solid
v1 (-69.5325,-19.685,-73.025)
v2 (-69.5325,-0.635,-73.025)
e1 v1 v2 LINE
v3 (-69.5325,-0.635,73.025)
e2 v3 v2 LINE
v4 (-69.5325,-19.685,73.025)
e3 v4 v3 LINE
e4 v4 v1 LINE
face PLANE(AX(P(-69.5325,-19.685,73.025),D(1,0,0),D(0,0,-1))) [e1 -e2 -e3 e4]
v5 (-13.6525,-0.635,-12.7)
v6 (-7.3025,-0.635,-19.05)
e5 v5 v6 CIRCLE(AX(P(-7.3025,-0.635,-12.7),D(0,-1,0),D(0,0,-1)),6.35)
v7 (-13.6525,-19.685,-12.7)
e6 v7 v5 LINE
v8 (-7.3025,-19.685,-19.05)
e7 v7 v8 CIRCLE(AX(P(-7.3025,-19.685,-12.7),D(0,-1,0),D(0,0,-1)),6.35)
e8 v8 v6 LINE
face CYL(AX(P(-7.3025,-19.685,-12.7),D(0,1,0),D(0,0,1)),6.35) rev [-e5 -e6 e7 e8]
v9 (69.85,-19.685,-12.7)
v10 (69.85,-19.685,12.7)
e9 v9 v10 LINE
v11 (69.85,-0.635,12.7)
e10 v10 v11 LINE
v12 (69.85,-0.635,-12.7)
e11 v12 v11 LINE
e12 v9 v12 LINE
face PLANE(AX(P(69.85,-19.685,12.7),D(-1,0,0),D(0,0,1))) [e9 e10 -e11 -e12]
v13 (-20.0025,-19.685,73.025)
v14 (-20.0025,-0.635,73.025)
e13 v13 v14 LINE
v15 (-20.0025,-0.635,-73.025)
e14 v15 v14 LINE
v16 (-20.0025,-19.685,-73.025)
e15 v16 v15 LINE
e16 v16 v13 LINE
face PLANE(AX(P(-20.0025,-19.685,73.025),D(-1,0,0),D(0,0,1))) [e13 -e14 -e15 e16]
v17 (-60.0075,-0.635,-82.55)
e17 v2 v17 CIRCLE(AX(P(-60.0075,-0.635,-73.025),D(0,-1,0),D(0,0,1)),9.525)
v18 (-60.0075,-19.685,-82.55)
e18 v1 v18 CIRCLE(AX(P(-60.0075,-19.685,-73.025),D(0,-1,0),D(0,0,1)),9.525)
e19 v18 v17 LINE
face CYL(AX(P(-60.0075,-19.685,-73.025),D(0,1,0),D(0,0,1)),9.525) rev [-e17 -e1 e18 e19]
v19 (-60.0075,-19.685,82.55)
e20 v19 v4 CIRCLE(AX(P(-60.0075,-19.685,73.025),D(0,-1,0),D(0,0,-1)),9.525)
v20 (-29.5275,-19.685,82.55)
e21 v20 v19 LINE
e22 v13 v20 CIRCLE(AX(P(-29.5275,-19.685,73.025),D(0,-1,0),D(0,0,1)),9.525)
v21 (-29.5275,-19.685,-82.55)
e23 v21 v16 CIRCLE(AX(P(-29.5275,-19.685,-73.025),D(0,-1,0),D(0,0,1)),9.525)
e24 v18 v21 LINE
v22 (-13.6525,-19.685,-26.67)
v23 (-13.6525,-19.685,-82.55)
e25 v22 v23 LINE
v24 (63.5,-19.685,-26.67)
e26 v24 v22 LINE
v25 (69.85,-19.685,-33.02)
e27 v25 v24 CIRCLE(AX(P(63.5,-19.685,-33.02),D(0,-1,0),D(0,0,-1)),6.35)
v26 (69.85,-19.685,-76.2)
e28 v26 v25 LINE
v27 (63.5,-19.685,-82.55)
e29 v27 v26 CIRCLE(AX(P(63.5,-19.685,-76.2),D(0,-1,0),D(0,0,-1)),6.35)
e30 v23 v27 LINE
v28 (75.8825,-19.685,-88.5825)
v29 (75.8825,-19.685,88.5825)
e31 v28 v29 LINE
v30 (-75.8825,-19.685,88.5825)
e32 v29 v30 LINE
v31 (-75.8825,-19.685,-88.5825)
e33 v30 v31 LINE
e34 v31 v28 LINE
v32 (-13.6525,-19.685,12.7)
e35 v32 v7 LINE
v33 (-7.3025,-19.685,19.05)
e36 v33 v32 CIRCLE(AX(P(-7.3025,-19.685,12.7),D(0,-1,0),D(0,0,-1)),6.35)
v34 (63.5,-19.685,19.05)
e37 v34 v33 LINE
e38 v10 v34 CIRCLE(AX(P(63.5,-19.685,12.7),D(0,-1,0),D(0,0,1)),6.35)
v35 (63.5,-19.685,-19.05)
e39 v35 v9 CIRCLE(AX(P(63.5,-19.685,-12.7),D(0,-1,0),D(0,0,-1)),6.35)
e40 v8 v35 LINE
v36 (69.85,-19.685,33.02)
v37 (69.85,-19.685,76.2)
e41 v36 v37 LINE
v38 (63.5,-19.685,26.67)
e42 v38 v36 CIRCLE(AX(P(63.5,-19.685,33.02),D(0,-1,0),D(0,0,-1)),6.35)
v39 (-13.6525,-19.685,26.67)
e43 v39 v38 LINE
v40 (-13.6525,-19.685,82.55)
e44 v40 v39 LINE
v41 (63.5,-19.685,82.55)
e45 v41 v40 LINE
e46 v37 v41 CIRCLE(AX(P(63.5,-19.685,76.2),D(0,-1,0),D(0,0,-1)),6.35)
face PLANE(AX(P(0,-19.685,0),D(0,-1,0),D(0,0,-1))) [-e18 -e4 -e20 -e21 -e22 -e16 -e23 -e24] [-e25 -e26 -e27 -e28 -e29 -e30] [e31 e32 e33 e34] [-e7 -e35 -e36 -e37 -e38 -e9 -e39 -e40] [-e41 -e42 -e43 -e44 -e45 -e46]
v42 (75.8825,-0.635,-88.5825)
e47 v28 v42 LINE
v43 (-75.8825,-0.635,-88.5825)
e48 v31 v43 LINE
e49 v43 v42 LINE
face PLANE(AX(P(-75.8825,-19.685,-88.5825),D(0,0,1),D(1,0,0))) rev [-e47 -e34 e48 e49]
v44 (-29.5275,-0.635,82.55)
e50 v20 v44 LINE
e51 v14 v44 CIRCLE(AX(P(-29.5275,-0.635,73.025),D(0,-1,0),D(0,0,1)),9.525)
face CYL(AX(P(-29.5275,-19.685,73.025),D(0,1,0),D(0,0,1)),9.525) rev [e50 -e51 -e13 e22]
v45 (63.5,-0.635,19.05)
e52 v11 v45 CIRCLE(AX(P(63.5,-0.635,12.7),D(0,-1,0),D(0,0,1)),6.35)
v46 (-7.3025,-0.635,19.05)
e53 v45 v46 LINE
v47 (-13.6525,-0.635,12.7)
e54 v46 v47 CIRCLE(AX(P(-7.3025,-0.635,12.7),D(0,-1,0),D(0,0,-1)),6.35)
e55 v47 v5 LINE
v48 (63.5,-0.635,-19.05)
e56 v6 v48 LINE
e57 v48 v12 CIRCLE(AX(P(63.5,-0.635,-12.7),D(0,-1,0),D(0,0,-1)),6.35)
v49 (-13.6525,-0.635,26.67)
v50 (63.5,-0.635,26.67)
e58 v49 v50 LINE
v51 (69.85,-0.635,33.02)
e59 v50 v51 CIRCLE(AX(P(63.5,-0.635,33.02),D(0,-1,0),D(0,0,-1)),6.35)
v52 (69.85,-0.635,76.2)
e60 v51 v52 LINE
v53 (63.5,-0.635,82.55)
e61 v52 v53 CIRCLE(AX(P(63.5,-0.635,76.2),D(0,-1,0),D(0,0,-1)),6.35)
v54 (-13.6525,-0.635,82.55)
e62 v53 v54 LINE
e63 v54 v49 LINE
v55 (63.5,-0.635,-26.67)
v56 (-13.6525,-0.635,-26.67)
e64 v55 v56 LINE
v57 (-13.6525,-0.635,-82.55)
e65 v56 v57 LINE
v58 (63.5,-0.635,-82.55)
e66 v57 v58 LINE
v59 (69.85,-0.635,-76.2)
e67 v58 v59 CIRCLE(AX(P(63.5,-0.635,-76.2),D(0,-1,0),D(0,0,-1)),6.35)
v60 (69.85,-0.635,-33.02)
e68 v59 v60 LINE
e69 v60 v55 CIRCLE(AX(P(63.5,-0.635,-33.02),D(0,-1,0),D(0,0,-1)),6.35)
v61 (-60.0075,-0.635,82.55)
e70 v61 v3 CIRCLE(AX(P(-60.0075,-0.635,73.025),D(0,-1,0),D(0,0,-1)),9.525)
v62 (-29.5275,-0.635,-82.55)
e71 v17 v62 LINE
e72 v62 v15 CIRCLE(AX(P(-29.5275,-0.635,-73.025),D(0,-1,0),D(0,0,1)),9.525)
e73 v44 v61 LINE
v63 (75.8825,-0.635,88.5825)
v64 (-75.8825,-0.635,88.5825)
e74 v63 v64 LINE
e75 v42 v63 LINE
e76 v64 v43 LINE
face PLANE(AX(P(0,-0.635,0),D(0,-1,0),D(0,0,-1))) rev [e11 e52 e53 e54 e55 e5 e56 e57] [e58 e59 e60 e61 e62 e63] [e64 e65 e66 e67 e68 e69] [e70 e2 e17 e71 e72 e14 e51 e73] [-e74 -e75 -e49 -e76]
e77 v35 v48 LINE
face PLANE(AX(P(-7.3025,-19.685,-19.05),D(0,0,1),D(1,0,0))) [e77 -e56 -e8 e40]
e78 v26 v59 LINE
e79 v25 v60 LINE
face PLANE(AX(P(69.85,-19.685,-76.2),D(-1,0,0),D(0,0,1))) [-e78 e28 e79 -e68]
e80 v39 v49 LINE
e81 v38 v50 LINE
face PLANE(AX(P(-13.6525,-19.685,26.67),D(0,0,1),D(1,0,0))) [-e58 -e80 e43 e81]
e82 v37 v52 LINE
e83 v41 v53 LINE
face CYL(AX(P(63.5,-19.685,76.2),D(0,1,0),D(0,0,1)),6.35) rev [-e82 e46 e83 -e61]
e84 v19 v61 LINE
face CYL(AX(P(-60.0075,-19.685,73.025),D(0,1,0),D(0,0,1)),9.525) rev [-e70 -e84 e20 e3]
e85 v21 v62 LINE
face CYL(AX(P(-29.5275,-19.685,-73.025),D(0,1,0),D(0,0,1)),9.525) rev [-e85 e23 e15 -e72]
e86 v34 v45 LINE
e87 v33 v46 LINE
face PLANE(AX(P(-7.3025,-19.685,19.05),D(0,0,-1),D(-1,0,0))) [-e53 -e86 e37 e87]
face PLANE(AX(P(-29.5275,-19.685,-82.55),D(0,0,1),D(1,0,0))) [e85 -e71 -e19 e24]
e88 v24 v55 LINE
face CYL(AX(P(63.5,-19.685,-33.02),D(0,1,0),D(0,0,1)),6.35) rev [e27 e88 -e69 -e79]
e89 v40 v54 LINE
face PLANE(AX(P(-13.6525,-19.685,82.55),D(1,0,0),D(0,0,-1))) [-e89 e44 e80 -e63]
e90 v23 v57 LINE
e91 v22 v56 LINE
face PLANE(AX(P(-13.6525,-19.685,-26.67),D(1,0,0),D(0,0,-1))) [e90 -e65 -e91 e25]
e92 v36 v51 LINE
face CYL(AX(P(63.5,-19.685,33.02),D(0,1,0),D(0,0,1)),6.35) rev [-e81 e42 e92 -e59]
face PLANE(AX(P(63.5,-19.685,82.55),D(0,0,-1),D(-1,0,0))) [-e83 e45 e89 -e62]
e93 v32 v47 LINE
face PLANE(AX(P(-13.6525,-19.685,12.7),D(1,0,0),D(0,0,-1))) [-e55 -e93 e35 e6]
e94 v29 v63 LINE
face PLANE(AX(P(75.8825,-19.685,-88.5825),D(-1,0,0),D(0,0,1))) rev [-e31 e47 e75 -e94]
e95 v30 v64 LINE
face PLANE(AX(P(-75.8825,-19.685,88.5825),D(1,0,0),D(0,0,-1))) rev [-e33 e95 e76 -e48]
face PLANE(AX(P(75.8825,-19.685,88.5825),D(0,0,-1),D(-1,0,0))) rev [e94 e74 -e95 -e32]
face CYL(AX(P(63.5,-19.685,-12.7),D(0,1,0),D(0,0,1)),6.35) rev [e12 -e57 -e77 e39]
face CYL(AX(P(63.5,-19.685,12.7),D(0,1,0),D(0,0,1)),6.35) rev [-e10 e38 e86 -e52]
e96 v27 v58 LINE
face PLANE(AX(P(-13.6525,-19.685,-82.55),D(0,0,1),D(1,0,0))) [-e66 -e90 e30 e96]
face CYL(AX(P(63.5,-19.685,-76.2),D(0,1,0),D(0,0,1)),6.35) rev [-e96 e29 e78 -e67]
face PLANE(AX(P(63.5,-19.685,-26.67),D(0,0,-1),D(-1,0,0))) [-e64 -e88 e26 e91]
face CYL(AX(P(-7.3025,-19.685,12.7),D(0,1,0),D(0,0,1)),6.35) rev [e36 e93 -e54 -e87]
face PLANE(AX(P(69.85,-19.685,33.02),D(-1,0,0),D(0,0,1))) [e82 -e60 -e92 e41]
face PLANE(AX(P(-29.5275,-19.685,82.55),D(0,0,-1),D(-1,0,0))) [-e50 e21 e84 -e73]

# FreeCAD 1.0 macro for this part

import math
import FreeCAD as App
import Part
import Sketcher
Q = App.Units.Quantity

doc = App.newDocument("Part")
body = doc.addObject("PartDesign::Body", "Body")

# Sketch on XZ plane
sketch1 = body.newObject("Sketcher::SketchObject", "Sketch")
sketch1.AttachmentSupport = (doc.getObject("XZ_Plane"), [""])
sketch1.MapMode = "FlatFace"
sketch1.AttachmentOffset = App.Placement(App.Vector(0, 0, 0.025 * 25.4), App.Rotation())
sketch1.addGeometry(Part.LineSegment(App.Vector(76, -89, 0), App.Vector(76, 89, 0)), False)
sketch1.addGeometry(Part.LineSegment(App.Vector(76, 89, 0), App.Vector(-76, 89, 0)), False)
sketch1.addGeometry(Part.LineSegment(App.Vector(-76, 89, 0), App.Vector(-76, -89, 0)), False)
sketch1.addGeometry(Part.LineSegment(App.Vector(-76, -89, 0), App.Vector(76, -89, 0)), False)
sketch1.addGeometry(Part.LineSegment(App.Vector(-14, 27, 0), App.Vector(-14, 83, 0)), False)
sketch1.addGeometry(Part.LineSegment(App.Vector(-14, 83, 0), App.Vector(64, 83, 0)), False)
sketch1.addGeometry(Part.ArcOfCircle(Part.Circle(App.Vector(64, 76, 0), App.Vector(0, 0, 1), 6), math.radians(0), math.radians(90)), False)
sketch1.addGeometry(Part.LineSegment(App.Vector(70, 76, 0), App.Vector(70, 33, 0)), False)
sketch1.addGeometry(Part.ArcOfCircle(Part.Circle(App.Vector(64, 33, 0), App.Vector(0, 0, 1), 6), math.radians(-90), math.radians(0)), False)
sketch1.addGeometry(Part.LineSegment(App.Vector(64, 27, 0), App.Vector(-14, 27, 0)), False)
sketch1.addGeometry(Part.ArcOfCircle(Part.Circle(App.Vector(-7, 13, 0), App.Vector(0, 0, 1), 6), math.radians(90), math.radians(180)), False)
sketch1.addGeometry(Part.LineSegment(App.Vector(-7, 19, 0), App.Vector(64, 19, 0)), False)
sketch1.addGeometry(Part.ArcOfCircle(Part.Circle(App.Vector(64, 13, 0), App.Vector(0, 0, 1), 6), math.radians(0), math.radians(90)), False)
sketch1.addGeometry(Part.LineSegment(App.Vector(70, 13, 0), App.Vector(70, -13, 0)), False)
sketch1.addGeometry(Part.ArcOfCircle(Part.Circle(App.Vector(64, -13, 0), App.Vector(0, 0, 1), 6), math.radians(-90), math.radians(0)), False)
sketch1.addGeometry(Part.LineSegment(App.Vector(64, -19, 0), App.Vector(-7, -19, 0)), False)
sketch1.addGeometry(Part.ArcOfCircle(Part.Circle(App.Vector(-7, -13, 0), App.Vector(0, 0, 1), 6), math.radians(180), math.radians(270)), False)
sketch1.addGeometry(Part.LineSegment(App.Vector(-14, -13, 0), App.Vector(-14, 13, 0)), False)
sketch1.addGeometry(Part.LineSegment(App.Vector(-14, -83, 0), App.Vector(-14, -27, 0)), False)
sketch1.addGeometry(Part.LineSegment(App.Vector(-14, -27, 0), App.Vector(64, -27, 0)), False)
sketch1.addGeometry(Part.ArcOfCircle(Part.Circle(App.Vector(64, -33, 0), App.Vector(0, 0, 1), 6), math.radians(0), math.radians(90)), False)
sketch1.addGeometry(Part.LineSegment(App.Vector(70, -33, 0), App.Vector(70, -76, 0)), False)
sketch1.addGeometry(Part.ArcOfCircle(Part.Circle(App.Vector(64, -76, 0), App.Vector(0, 0, 1), 6), math.radians(-90), math.radians(0)), False)
sketch1.addGeometry(Part.LineSegment(App.Vector(64, -83, 0), App.Vector(-14, -83, 0)), False)
sketch1.addGeometry(Part.LineSegment(App.Vector(-60, 83, 0), App.Vector(-30, 83, 0)), False)
sketch1.addGeometry(Part.ArcOfCircle(Part.Circle(App.Vector(-30, 73, 0), App.Vector(0, 0, 1), 10), math.radians(0), math.radians(90)), False)
sketch1.addGeometry(Part.LineSegment(App.Vector(-20, 73, 0), App.Vector(-20, -73, 0)), False)
sketch1.addGeometry(Part.ArcOfCircle(Part.Circle(App.Vector(-30, -73, 0), App.Vector(0, 0, 1), 10), math.radians(-90), math.radians(0)), False)
sketch1.addGeometry(Part.LineSegment(App.Vector(-30, -83, 0), App.Vector(-60, -83, 0)), False)
sketch1.addGeometry(Part.ArcOfCircle(Part.Circle(App.Vector(-60, -73, 0), App.Vector(0, 0, 1), 10), math.radians(180), math.radians(270)), False)
sketch1.addGeometry(Part.LineSegment(App.Vector(-70, -73, 0), App.Vector(-70, 73, 0)), False)
sketch1.addGeometry(Part.ArcOfCircle(Part.Circle(App.Vector(-60, 73, 0), App.Vector(0, 0, 1), 10), math.radians(90), math.radians(180)), False)
sketch1.addConstraint(Sketcher.Constraint("Coincident", 0, 2, 1, 1))
sketch1.addConstraint(Sketcher.Constraint("Coincident", 1, 2, 2, 1))
sketch1.addConstraint(Sketcher.Constraint("Coincident", 2, 2, 3, 1))
sketch1.addConstraint(Sketcher.Constraint("Coincident", 3, 2, 0, 1))
sketch1.addConstraint(Sketcher.Constraint("Coincident", 4, 2, 5, 1))
sketch1.addConstraint(Sketcher.Constraint("Tangent", 5, 2, 6, 2))
sketch1.addConstraint(Sketcher.Constraint("Tangent", 6, 1, 7, 1))
sketch1.addConstraint(Sketcher.Constraint("Tangent", 7, 2, 8, 2))
sketch1.addConstraint(Sketcher.Constraint("Tangent", 8, 1, 9, 1))
sketch1.addConstraint(Sketcher.Constraint("Coincident", 9, 2, 4, 1))
sketch1.addConstraint(Sketcher.Constraint("Tangent", 10, 1, 11, 1))
sketch1.addConstraint(Sketcher.Constraint("Tangent", 11, 2, 12, 2))
sketch1.addConstraint(Sketcher.Constraint("Tangent", 12, 1, 13, 1))
sketch1.addConstraint(Sketcher.Constraint("Tangent", 13, 2, 14, 2))
sketch1.addConstraint(Sketcher.Constraint("Tangent", 14, 1, 15, 1))
sketch1.addConstraint(Sketcher.Constraint("Tangent", 15, 2, 16, 2))
sketch1.addConstraint(Sketcher.Constraint("Tangent", 16, 1, 17, 1))
sketch1.addConstraint(Sketcher.Constraint("Tangent", 17, 2, 10, 2))
sketch1.addConstraint(Sketcher.Constraint("Coincident", 18, 2, 19, 1))
sketch1.addConstraint(Sketcher.Constraint("Tangent", 19, 2, 20, 2))
sketch1.addConstraint(Sketcher.Constraint("Tangent", 20, 1, 21, 1))
sketch1.addConstraint(Sketcher.Constraint("Tangent", 21, 2, 22, 2))
sketch1.addConstraint(Sketcher.Constraint("Tangent", 22, 1, 23, 1))
sketch1.addConstraint(Sketcher.Constraint("Coincident", 23, 2, 18, 1))
sketch1.addConstraint(Sketcher.Constraint("Tangent", 24, 2, 25, 2))
sketch1.addConstraint(Sketcher.Constraint("Tangent", 25, 1, 26, 1))
sketch1.addConstraint(Sketcher.Constraint("Tangent", 26, 2, 27, 2))
sketch1.addConstraint(Sketcher.Constraint("Tangent", 27, 1, 28, 1))
sketch1.addConstraint(Sketcher.Constraint("Tangent", 28, 2, 29, 2))
sketch1.addConstraint(Sketcher.Constraint("Tangent", 29, 1, 30, 1))
sketch1.addConstraint(Sketcher.Constraint("Tangent", 30, 2, 31, 2))
sketch1.addConstraint(Sketcher.Constraint("Tangent", 31, 1, 24, 1))
sketch1.addConstraint(Sketcher.Constraint("Vertical", 0))
sketch1.addConstraint(Sketcher.Constraint("Horizontal", 1))
sketch1.addConstraint(Sketcher.Constraint("Vertical", 2))
sketch1.addConstraint(Sketcher.Constraint("Horizontal", 3))
sketch1.addConstraint(Sketcher.Constraint("Vertical", 4))
sketch1.addConstraint(Sketcher.Constraint("Horizontal", 5))
sketch1.addConstraint(Sketcher.Constraint("Vertical", 7))
sketch1.addConstraint(Sketcher.Constraint("Horizontal", 9))
sketch1.addConstraint(Sketcher.Constraint("Horizontal", 11))
sketch1.addConstraint(Sketcher.Constraint("Vertical", 13))
sketch1.addConstraint(Sketcher.Constraint("Horizontal", 15))
sketch1.addConstraint(Sketcher.Constraint("Vertical", 17))
sketch1.addConstraint(Sketcher.Constraint("Vertical", 18))
sketch1.addConstraint(Sketcher.Constraint("Horizontal", 19))
sketch1.addConstraint(Sketcher.Constraint("Vertical", 21))
sketch1.addConstraint(Sketcher.Constraint("Horizontal", 23))
sketch1.addConstraint(Sketcher.Constraint("Horizontal", 24))
sketch1.addConstraint(Sketcher.Constraint("Vertical", 26))
sketch1.addConstraint(Sketcher.Constraint("Horizontal", 28))
sketch1.addConstraint(Sketcher.Constraint("Vertical", 30))
sketch1.addConstraint(Sketcher.Constraint("Equal", 6, 8))
sketch1.addConstraint(Sketcher.Constraint("Equal", 8, 10))
sketch1.addConstraint(Sketcher.Constraint("Equal", 10, 12))
sketch1.addConstraint(Sketcher.Constraint("Equal", 12, 14))
sketch1.addConstraint(Sketcher.Constraint("Equal", 14, 16))
sketch1.addConstraint(Sketcher.Constraint("Equal", 16, 20))
sketch1.addConstraint(Sketcher.Constraint("Equal", 20, 22))
sketch1.addConstraint(Sketcher.Constraint("Equal", 25, 27))
sketch1.addConstraint(Sketcher.Constraint("Equal", 27, 29))
sketch1.addConstraint(Sketcher.Constraint("Equal", 29, 31))
sketch1.addConstraint(Sketcher.Constraint("Symmetric", 0, 2, 2, 2, -1, 1))
sketch1.addConstraint(Sketcher.Constraint("Symmetric", 8, 3, 20, 3, -1))
sketch1.addConstraint(Sketcher.Constraint("Symmetric", 4, 2, 23, 2, -1))
sketch1.addConstraint(Sketcher.Constraint("Horizontal", 5, 2, 24, 2))
sketch1.addConstraint(Sketcher.Constraint("Horizontal", 23, 2, 27, 1))
sketch1.addConstraint(Sketcher.Constraint("Vertical", 8, 3, 12, 3))
sketch1.addConstraint(Sketcher.Constraint("Vertical", 9, 2, 16, 1))
sketch1.addConstraint(Sketcher.Constraint("DistanceY", 13, 2, 13, 1, Q("1 in")))
sketch1.addConstraint(Sketcher.Constraint("Radius", 6, Q("0.25 in")))
sketch1.addConstraint(Sketcher.Constraint("DistanceX", 24, 1, 24, 2, Q("1.2 in")))
sketch1.addConstraint(Sketcher.Constraint("DistanceY", 4, 1, 4, 2, Q("2.2 in")))
sketch1.addConstraint(Sketcher.Constraint("DistanceY", -1, 1, 6, 3, Q("3 in")))
sketch1.addConstraint(Sketcher.Constraint("Radius", 25, Q("0.375 in")))
sketch1.addConstraint(Sketcher.Constraint("DistanceX", -1, 1, 6, 3, Q("2.5 in")))
sketch1.addConstraint(Sketcher.Constraint("DistanceY", -1, 1, 10, 3, Q("0.5 in")))
sketch1.addConstraint(Sketcher.Constraint("DistanceX", 1, 2, 10, 3, Q("2.7 in")))
sketch1.addConstraint(Sketcher.Constraint("DistanceX", 26, 2, 15, 2, Q("0.5 in")))
sketch1.addConstraint(Sketcher.Constraint("DistanceX", 1, 2, 1, 1, Q("5.975 in")))
sketch1.addConstraint(Sketcher.Constraint("DistanceY", 0, 1, 0, 2, Q("6.975 in")))
pad1 = body.newObject("PartDesign::Pad", "Pad")
pad1.Profile = sketch1
pad1.Length = Q("0.75 in")

doc.recompute()
